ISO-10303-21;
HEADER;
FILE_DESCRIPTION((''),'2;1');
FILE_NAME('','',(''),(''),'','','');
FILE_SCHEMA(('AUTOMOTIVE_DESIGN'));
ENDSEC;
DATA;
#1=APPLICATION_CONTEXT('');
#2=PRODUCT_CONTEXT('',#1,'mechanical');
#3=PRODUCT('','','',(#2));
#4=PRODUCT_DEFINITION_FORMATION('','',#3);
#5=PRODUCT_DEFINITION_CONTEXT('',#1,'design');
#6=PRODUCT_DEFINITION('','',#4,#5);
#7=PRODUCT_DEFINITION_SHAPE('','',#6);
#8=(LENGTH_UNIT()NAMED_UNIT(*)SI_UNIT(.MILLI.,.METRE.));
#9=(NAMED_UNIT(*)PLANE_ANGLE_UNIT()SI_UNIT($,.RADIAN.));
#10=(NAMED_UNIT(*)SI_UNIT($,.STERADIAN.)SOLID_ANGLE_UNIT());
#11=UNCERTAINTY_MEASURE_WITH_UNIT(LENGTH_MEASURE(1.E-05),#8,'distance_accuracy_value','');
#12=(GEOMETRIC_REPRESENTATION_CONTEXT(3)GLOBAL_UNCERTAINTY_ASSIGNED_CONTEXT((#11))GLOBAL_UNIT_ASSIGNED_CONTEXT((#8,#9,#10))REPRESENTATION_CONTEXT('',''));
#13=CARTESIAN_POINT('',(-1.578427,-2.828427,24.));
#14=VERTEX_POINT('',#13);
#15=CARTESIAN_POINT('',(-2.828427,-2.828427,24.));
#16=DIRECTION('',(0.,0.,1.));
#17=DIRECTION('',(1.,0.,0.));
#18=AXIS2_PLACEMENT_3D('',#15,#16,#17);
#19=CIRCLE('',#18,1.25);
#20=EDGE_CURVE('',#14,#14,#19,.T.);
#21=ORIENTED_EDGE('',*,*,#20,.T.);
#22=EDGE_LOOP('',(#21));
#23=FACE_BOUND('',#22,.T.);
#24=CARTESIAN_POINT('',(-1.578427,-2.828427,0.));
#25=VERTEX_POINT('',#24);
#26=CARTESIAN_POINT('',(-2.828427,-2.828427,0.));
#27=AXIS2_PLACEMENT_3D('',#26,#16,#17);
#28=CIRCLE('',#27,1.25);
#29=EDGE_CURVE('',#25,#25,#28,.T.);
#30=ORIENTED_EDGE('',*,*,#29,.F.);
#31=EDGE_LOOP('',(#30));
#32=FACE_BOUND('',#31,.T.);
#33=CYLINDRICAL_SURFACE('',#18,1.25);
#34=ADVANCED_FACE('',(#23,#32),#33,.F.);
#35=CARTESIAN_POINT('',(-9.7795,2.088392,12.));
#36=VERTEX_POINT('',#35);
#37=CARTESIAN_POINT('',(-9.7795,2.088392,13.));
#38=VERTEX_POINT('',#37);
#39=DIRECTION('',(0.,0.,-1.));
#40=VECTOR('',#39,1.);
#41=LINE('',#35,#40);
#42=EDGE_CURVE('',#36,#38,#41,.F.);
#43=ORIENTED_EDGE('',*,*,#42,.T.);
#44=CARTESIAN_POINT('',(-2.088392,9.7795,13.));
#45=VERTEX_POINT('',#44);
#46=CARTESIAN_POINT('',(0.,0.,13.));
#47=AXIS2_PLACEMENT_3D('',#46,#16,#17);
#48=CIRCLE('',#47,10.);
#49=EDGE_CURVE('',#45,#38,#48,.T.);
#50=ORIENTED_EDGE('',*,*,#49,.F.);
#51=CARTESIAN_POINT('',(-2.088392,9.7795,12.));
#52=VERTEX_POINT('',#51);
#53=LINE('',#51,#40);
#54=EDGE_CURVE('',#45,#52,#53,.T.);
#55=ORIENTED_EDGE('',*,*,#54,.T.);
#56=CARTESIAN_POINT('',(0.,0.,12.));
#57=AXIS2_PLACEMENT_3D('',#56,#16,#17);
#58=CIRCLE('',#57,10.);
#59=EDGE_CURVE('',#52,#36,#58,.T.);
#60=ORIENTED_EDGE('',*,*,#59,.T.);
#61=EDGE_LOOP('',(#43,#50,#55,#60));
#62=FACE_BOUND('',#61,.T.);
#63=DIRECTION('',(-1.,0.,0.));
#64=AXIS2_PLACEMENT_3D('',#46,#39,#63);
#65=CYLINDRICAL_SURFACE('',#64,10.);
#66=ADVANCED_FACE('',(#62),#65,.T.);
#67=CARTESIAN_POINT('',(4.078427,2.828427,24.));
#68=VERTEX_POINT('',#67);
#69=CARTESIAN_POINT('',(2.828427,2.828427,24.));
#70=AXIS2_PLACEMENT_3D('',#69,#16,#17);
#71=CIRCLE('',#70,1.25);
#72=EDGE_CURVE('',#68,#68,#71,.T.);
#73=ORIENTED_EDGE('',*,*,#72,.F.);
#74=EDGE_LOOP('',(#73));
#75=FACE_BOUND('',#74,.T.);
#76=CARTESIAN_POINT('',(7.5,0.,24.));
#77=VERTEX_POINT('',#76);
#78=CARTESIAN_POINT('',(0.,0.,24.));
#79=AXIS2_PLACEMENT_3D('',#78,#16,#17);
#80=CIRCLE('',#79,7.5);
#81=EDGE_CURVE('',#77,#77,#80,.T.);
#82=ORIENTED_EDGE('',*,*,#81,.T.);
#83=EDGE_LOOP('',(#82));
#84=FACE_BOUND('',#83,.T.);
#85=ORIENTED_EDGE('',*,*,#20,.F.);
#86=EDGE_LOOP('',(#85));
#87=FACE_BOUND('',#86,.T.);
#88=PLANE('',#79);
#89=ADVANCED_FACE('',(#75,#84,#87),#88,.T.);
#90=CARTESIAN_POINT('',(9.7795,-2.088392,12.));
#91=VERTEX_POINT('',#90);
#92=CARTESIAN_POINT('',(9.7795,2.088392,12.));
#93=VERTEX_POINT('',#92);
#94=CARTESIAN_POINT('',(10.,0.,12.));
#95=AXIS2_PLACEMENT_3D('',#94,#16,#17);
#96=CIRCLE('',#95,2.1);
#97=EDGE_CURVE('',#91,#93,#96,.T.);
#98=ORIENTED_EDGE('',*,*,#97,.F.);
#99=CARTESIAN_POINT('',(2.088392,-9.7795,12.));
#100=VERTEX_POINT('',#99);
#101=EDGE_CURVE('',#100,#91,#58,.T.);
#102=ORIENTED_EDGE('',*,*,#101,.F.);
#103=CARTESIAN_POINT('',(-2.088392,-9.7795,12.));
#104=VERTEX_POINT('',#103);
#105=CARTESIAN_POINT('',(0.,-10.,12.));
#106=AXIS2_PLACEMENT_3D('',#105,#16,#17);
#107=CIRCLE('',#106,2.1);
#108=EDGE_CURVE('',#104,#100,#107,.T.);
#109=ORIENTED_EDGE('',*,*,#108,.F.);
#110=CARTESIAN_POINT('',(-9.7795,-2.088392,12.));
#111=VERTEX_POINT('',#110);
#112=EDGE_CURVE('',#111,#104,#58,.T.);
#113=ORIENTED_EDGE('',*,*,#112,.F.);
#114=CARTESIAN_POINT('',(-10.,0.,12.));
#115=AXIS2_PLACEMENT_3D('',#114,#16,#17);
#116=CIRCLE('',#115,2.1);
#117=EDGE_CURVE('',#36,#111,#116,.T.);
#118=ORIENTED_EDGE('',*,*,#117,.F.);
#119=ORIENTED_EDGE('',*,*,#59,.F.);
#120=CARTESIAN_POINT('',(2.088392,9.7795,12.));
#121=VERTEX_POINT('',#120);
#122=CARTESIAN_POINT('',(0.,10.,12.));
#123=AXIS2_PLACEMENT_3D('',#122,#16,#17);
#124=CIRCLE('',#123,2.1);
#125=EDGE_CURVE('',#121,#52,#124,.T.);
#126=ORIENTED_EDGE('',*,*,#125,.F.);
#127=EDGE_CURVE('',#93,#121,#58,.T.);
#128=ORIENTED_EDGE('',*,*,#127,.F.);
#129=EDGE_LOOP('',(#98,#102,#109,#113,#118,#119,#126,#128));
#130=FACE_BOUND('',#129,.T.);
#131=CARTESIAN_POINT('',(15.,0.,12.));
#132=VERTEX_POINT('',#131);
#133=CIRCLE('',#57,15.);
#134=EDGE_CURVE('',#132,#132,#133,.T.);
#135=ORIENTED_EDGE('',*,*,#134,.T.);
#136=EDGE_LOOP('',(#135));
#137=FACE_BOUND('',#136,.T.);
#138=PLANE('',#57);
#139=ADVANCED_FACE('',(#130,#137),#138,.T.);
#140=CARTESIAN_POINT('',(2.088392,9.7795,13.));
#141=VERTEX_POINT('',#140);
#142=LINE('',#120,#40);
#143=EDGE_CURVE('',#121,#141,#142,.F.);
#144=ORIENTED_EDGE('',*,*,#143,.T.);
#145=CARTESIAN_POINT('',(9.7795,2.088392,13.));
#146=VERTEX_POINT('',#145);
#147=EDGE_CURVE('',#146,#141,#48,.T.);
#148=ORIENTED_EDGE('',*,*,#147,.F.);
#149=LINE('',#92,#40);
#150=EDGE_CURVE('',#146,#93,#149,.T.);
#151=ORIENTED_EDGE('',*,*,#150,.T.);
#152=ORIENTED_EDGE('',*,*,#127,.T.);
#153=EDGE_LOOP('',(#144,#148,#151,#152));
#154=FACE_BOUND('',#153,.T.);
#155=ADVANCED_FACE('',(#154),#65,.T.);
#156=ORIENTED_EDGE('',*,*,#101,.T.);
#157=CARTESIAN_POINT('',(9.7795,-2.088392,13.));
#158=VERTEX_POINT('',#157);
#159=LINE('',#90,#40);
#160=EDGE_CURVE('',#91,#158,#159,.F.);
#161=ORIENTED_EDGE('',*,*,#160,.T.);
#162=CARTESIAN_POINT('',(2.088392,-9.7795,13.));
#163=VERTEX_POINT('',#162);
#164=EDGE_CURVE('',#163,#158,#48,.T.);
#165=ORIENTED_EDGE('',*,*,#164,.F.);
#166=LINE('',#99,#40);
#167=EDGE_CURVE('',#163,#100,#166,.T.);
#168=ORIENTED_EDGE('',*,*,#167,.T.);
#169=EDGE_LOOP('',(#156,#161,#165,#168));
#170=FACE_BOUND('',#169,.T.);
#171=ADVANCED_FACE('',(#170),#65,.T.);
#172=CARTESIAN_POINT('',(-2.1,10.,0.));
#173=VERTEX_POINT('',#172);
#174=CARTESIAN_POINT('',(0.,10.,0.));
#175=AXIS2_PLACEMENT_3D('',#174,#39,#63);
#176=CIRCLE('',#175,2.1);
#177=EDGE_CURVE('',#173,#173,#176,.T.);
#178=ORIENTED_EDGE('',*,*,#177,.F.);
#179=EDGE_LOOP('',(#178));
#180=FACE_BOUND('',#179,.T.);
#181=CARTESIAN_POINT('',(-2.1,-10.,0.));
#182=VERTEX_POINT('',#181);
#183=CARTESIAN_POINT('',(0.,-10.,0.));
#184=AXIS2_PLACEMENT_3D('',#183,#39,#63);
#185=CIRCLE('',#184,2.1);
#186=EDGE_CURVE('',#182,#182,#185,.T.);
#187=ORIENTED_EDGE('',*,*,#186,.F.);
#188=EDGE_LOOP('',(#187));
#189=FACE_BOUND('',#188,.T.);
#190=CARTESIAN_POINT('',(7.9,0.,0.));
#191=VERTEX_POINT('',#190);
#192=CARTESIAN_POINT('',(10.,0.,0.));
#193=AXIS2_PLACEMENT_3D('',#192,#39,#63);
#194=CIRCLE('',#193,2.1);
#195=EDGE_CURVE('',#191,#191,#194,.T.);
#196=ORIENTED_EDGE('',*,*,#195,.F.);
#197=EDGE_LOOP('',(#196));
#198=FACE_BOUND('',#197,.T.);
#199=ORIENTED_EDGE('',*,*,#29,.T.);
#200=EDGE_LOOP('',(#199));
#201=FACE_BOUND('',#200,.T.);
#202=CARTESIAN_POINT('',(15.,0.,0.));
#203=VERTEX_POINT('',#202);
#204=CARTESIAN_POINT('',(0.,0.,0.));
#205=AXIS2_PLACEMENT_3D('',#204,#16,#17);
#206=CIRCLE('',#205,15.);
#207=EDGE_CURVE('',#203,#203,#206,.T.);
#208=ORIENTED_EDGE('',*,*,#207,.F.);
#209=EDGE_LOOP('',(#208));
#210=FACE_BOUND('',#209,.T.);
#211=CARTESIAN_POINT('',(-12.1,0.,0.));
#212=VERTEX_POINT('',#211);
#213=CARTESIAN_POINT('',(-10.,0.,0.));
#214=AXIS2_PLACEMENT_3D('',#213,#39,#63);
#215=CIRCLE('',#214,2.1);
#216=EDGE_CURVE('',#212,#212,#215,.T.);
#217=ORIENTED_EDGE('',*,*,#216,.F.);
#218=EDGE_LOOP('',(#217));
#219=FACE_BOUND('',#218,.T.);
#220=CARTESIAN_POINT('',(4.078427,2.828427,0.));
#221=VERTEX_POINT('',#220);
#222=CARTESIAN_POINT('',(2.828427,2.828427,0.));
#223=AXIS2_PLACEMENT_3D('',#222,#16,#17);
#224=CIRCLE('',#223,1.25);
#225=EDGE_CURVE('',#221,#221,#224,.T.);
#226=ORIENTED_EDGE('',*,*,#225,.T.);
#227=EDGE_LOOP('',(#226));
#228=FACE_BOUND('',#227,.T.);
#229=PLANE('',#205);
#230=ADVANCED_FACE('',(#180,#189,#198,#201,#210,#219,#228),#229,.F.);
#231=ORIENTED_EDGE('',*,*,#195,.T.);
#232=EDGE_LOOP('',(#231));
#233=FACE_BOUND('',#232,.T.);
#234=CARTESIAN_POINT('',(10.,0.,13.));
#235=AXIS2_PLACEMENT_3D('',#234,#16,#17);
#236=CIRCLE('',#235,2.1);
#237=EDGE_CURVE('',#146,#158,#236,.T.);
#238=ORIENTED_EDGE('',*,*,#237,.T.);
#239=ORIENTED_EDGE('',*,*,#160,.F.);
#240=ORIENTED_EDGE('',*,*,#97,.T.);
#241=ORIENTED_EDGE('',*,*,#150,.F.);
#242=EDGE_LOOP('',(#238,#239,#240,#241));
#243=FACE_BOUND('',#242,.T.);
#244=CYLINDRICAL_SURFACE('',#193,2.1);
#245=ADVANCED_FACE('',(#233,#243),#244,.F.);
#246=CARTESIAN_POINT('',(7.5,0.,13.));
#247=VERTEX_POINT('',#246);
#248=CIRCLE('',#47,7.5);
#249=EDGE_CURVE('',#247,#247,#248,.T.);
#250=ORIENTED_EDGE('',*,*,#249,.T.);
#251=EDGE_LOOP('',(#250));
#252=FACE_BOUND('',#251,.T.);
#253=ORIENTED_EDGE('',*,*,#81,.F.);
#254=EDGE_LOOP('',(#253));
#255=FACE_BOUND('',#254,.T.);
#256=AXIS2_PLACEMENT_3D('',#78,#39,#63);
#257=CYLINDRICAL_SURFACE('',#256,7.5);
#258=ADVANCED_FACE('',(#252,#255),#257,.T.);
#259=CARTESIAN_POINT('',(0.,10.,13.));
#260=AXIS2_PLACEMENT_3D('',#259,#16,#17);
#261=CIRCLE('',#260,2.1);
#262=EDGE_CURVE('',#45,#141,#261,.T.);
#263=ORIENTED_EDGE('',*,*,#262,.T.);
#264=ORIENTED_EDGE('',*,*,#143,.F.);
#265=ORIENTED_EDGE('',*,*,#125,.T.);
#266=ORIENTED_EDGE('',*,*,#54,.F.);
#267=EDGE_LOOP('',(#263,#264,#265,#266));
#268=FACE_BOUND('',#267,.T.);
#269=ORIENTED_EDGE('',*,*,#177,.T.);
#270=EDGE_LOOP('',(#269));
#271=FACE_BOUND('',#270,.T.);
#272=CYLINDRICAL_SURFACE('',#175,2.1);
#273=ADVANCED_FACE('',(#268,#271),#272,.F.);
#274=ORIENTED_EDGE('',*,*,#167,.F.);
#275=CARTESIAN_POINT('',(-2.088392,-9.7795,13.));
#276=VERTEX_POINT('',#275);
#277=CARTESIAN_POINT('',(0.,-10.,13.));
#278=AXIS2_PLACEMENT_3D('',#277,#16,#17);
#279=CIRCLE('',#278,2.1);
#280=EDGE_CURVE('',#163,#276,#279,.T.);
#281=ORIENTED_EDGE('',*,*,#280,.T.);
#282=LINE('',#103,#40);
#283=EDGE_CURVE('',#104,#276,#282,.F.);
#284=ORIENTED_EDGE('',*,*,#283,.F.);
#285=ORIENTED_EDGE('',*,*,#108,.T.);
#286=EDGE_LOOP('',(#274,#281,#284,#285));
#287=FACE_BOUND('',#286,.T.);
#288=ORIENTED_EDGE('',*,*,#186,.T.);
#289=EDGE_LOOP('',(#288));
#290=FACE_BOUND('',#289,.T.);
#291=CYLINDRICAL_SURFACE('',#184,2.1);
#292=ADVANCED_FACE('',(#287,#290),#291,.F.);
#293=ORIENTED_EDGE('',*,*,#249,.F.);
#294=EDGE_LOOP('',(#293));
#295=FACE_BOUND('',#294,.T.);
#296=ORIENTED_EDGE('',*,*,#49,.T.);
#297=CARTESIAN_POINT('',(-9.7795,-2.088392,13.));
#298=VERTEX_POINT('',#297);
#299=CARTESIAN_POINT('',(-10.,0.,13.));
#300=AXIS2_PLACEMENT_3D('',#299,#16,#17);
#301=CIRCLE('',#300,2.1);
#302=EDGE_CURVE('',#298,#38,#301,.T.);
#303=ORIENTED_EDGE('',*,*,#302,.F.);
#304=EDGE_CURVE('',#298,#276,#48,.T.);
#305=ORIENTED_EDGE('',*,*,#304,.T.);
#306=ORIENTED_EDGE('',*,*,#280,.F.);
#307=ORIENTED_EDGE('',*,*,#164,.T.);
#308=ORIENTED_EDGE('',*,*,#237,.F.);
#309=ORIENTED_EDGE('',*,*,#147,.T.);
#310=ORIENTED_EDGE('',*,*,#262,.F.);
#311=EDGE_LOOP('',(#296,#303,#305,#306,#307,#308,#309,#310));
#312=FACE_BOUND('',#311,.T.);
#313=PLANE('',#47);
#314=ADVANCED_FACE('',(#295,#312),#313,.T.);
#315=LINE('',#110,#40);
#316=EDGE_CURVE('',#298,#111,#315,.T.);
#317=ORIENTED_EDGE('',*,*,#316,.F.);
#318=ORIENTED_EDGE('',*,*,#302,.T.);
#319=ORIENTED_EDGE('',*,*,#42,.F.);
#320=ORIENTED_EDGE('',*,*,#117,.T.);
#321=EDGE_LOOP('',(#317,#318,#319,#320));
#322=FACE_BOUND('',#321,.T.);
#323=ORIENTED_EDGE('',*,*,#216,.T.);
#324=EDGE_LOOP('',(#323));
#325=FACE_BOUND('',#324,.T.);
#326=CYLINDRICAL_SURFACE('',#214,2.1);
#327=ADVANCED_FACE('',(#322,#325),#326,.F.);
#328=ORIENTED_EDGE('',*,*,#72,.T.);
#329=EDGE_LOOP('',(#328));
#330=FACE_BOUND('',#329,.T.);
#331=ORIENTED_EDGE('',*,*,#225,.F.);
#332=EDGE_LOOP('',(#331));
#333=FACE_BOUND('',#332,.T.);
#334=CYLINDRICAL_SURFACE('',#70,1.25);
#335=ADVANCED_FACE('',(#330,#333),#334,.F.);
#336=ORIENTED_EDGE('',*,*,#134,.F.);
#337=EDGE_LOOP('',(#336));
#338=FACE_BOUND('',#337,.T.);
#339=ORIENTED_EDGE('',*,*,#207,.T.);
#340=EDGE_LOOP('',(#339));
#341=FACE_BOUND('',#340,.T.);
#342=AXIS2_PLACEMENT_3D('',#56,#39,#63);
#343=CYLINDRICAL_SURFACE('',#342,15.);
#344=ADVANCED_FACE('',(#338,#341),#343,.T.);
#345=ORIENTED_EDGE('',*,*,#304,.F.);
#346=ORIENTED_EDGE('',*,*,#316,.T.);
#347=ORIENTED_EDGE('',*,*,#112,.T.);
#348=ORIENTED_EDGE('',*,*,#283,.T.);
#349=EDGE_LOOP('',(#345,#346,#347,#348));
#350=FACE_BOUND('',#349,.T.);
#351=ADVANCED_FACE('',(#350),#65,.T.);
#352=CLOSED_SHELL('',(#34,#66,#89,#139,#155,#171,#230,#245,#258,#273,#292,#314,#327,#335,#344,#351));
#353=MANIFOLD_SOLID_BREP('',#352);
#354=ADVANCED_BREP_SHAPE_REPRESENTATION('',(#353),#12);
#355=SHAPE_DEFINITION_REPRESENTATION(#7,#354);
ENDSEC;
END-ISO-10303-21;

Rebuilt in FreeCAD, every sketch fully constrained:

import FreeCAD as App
import Part
import Sketcher

doc = App.newDocument("Part")
body = doc.addObject("PartDesign::Body", "Body")

# Sketch on XY plane
sketch1 = body.newObject("Sketcher::SketchObject", "Sketch")
sketch1.AttachmentSupport = (doc.getObject("XY_Plane"), [""])
sketch1.MapMode = "FlatFace"
sketch1.addGeometry(Part.Circle(App.Vector(0, 0, 0), App.Vector(0, 0, 1), 15), False)
sketch1.addConstraint(Sketcher.Constraint("Coincident", 0, 3, -1, 1))
sketch1.addConstraint(Sketcher.Constraint("Diameter", 0, 30.0))
pad1 = body.newObject("PartDesign::Pad", "Pad")
pad1.Profile = sketch1
pad1.Length = 12

# Sketch on XY plane
sketch2 = body.newObject("Sketcher::SketchObject", "Sketch001")
sketch2.AttachmentSupport = (doc.getObject("XY_Plane"), [""])
sketch2.MapMode = "FlatFace"
sketch2.AttachmentOffset = App.Placement(App.Vector(0, 0, 12), App.Rotation())
sketch2.addGeometry(Part.Circle(App.Vector(0, 0, 0), App.Vector(0, 0, 1), 10), False)
sketch2.addConstraint(Sketcher.Constraint("Coincident", 0, 3, -1, 1))
sketch2.addConstraint(Sketcher.Constraint("Diameter", 0, 20.0))
pad2 = body.newObject("PartDesign::Pad", "Pad001")
pad2.Profile = sketch2
pad2.Length = 1

# Sketch on XY plane
sketch3 = body.newObject("Sketcher::SketchObject", "Sketch002")
sketch3.AttachmentSupport = (doc.getObject("XY_Plane"), [""])
sketch3.MapMode = "FlatFace"
sketch3.AttachmentOffset = App.Placement(App.Vector(0, 0, 13), App.Rotation())
sketch3.addGeometry(Part.Circle(App.Vector(0, 0, 0), App.Vector(0, 0, 1), 7.5), False)
sketch3.addConstraint(Sketcher.Constraint("Coincident", 0, 3, -1, 1))
sketch3.addConstraint(Sketcher.Constraint("Diameter", 0, 15.0))
pad3 = body.newObject("PartDesign::Pad", "Pad002")
pad3.Profile = sketch3
pad3.Length = 11

# Sketch on XY plane
sketch4 = body.newObject("Sketcher::SketchObject", "Sketch003")
sketch4.AttachmentSupport = (doc.getObject("XY_Plane"), [""])
sketch4.MapMode = "FlatFace"
sketch4.addGeometry(Part.Circle(App.Vector(0, 10, 0), App.Vector(0, 0, 1), 2.1), False)
sketch4.addGeometry(Part.Circle(App.Vector(-10, 0, 0), App.Vector(0, 0, 1), 2.1), False)
sketch4.addGeometry(Part.Circle(App.Vector(10, 0, 0), App.Vector(0, 0, 1), 2.1), False)
sketch4.addGeometry(Part.Circle(App.Vector(0, -10, 0), App.Vector(0, 0, 1), 2.1), False)
sketch4.addConstraint(Sketcher.Constraint("Equal", 0, 1))
sketch4.addConstraint(Sketcher.Constraint("Equal", 1, 2))
sketch4.addConstraint(Sketcher.Constraint("Equal", 2, 3))
sketch4.addConstraint(Sketcher.Constraint("Symmetric", 1, 3, 2, 3, -1, 1))
sketch4.addConstraint(Sketcher.Constraint("Symmetric", 0, 3, 3, 3, -1, 1))
sketch4.addConstraint(Sketcher.Constraint("PointOnObject", 0, 3, -2))
sketch4.addConstraint(Sketcher.Constraint("PointOnObject", 1, 3, -1))
sketch4.addConstraint(Sketcher.Constraint("Diameter", 0, 4.2))
sketch4.addConstraint(Sketcher.Constraint("DistanceY", -1, 1, 0, 3, 10.0))
sketch4.addConstraint(Sketcher.Constraint("DistanceX", 1, 3, -1, 1, 10.0))
doc.recompute()
hole = body.newObject("PartDesign::Hole", "Hole")
hole.Profile = sketch4
hole.ThreadType = "None"
hole.Diameter = 4.2
hole.DepthType = "ThroughAll"
hole.Reversed = True

# Sketch on XY plane
sketch5 = body.newObject("Sketcher::SketchObject", "Sketch004")
sketch5.AttachmentSupport = (doc.getObject("XY_Plane"), [""])
sketch5.MapMode = "FlatFace"
sketch5.AttachmentOffset = App.Placement(App.Vector(0, 0, 24), App.Rotation())
sketch5.addGeometry(Part.Circle(App.Vector(-2.828427, -2.828427, 0), App.Vector(0, 0, 1), 1.25), False)
sketch5.addGeometry(Part.Circle(App.Vector(2.828427, 2.828427, 0), App.Vector(0, 0, 1), 1.25), False)
sketch5.addConstraint(Sketcher.Constraint("Equal", 0, 1))
sketch5.addConstraint(Sketcher.Constraint("Symmetric", 0, 3, 1, 3, -1, 1))
sketch5.addConstraint(Sketcher.Constraint("Diameter", 0, 2.5))
sketch5.addConstraint(Sketcher.Constraint("DistanceX", 0, 3, -1, 1, 2.828427))
sketch5.addConstraint(Sketcher.Constraint("DistanceY", 0, 3, -1, 1, 2.828427))
doc.recompute()
hole2 = body.newObject("PartDesign::Hole", "Hole001")
hole2.Profile = sketch5
hole2.ThreadType = "None"
hole2.Diameter = 2.5
hole2.DepthType = "ThroughAll"

doc.recompute()
